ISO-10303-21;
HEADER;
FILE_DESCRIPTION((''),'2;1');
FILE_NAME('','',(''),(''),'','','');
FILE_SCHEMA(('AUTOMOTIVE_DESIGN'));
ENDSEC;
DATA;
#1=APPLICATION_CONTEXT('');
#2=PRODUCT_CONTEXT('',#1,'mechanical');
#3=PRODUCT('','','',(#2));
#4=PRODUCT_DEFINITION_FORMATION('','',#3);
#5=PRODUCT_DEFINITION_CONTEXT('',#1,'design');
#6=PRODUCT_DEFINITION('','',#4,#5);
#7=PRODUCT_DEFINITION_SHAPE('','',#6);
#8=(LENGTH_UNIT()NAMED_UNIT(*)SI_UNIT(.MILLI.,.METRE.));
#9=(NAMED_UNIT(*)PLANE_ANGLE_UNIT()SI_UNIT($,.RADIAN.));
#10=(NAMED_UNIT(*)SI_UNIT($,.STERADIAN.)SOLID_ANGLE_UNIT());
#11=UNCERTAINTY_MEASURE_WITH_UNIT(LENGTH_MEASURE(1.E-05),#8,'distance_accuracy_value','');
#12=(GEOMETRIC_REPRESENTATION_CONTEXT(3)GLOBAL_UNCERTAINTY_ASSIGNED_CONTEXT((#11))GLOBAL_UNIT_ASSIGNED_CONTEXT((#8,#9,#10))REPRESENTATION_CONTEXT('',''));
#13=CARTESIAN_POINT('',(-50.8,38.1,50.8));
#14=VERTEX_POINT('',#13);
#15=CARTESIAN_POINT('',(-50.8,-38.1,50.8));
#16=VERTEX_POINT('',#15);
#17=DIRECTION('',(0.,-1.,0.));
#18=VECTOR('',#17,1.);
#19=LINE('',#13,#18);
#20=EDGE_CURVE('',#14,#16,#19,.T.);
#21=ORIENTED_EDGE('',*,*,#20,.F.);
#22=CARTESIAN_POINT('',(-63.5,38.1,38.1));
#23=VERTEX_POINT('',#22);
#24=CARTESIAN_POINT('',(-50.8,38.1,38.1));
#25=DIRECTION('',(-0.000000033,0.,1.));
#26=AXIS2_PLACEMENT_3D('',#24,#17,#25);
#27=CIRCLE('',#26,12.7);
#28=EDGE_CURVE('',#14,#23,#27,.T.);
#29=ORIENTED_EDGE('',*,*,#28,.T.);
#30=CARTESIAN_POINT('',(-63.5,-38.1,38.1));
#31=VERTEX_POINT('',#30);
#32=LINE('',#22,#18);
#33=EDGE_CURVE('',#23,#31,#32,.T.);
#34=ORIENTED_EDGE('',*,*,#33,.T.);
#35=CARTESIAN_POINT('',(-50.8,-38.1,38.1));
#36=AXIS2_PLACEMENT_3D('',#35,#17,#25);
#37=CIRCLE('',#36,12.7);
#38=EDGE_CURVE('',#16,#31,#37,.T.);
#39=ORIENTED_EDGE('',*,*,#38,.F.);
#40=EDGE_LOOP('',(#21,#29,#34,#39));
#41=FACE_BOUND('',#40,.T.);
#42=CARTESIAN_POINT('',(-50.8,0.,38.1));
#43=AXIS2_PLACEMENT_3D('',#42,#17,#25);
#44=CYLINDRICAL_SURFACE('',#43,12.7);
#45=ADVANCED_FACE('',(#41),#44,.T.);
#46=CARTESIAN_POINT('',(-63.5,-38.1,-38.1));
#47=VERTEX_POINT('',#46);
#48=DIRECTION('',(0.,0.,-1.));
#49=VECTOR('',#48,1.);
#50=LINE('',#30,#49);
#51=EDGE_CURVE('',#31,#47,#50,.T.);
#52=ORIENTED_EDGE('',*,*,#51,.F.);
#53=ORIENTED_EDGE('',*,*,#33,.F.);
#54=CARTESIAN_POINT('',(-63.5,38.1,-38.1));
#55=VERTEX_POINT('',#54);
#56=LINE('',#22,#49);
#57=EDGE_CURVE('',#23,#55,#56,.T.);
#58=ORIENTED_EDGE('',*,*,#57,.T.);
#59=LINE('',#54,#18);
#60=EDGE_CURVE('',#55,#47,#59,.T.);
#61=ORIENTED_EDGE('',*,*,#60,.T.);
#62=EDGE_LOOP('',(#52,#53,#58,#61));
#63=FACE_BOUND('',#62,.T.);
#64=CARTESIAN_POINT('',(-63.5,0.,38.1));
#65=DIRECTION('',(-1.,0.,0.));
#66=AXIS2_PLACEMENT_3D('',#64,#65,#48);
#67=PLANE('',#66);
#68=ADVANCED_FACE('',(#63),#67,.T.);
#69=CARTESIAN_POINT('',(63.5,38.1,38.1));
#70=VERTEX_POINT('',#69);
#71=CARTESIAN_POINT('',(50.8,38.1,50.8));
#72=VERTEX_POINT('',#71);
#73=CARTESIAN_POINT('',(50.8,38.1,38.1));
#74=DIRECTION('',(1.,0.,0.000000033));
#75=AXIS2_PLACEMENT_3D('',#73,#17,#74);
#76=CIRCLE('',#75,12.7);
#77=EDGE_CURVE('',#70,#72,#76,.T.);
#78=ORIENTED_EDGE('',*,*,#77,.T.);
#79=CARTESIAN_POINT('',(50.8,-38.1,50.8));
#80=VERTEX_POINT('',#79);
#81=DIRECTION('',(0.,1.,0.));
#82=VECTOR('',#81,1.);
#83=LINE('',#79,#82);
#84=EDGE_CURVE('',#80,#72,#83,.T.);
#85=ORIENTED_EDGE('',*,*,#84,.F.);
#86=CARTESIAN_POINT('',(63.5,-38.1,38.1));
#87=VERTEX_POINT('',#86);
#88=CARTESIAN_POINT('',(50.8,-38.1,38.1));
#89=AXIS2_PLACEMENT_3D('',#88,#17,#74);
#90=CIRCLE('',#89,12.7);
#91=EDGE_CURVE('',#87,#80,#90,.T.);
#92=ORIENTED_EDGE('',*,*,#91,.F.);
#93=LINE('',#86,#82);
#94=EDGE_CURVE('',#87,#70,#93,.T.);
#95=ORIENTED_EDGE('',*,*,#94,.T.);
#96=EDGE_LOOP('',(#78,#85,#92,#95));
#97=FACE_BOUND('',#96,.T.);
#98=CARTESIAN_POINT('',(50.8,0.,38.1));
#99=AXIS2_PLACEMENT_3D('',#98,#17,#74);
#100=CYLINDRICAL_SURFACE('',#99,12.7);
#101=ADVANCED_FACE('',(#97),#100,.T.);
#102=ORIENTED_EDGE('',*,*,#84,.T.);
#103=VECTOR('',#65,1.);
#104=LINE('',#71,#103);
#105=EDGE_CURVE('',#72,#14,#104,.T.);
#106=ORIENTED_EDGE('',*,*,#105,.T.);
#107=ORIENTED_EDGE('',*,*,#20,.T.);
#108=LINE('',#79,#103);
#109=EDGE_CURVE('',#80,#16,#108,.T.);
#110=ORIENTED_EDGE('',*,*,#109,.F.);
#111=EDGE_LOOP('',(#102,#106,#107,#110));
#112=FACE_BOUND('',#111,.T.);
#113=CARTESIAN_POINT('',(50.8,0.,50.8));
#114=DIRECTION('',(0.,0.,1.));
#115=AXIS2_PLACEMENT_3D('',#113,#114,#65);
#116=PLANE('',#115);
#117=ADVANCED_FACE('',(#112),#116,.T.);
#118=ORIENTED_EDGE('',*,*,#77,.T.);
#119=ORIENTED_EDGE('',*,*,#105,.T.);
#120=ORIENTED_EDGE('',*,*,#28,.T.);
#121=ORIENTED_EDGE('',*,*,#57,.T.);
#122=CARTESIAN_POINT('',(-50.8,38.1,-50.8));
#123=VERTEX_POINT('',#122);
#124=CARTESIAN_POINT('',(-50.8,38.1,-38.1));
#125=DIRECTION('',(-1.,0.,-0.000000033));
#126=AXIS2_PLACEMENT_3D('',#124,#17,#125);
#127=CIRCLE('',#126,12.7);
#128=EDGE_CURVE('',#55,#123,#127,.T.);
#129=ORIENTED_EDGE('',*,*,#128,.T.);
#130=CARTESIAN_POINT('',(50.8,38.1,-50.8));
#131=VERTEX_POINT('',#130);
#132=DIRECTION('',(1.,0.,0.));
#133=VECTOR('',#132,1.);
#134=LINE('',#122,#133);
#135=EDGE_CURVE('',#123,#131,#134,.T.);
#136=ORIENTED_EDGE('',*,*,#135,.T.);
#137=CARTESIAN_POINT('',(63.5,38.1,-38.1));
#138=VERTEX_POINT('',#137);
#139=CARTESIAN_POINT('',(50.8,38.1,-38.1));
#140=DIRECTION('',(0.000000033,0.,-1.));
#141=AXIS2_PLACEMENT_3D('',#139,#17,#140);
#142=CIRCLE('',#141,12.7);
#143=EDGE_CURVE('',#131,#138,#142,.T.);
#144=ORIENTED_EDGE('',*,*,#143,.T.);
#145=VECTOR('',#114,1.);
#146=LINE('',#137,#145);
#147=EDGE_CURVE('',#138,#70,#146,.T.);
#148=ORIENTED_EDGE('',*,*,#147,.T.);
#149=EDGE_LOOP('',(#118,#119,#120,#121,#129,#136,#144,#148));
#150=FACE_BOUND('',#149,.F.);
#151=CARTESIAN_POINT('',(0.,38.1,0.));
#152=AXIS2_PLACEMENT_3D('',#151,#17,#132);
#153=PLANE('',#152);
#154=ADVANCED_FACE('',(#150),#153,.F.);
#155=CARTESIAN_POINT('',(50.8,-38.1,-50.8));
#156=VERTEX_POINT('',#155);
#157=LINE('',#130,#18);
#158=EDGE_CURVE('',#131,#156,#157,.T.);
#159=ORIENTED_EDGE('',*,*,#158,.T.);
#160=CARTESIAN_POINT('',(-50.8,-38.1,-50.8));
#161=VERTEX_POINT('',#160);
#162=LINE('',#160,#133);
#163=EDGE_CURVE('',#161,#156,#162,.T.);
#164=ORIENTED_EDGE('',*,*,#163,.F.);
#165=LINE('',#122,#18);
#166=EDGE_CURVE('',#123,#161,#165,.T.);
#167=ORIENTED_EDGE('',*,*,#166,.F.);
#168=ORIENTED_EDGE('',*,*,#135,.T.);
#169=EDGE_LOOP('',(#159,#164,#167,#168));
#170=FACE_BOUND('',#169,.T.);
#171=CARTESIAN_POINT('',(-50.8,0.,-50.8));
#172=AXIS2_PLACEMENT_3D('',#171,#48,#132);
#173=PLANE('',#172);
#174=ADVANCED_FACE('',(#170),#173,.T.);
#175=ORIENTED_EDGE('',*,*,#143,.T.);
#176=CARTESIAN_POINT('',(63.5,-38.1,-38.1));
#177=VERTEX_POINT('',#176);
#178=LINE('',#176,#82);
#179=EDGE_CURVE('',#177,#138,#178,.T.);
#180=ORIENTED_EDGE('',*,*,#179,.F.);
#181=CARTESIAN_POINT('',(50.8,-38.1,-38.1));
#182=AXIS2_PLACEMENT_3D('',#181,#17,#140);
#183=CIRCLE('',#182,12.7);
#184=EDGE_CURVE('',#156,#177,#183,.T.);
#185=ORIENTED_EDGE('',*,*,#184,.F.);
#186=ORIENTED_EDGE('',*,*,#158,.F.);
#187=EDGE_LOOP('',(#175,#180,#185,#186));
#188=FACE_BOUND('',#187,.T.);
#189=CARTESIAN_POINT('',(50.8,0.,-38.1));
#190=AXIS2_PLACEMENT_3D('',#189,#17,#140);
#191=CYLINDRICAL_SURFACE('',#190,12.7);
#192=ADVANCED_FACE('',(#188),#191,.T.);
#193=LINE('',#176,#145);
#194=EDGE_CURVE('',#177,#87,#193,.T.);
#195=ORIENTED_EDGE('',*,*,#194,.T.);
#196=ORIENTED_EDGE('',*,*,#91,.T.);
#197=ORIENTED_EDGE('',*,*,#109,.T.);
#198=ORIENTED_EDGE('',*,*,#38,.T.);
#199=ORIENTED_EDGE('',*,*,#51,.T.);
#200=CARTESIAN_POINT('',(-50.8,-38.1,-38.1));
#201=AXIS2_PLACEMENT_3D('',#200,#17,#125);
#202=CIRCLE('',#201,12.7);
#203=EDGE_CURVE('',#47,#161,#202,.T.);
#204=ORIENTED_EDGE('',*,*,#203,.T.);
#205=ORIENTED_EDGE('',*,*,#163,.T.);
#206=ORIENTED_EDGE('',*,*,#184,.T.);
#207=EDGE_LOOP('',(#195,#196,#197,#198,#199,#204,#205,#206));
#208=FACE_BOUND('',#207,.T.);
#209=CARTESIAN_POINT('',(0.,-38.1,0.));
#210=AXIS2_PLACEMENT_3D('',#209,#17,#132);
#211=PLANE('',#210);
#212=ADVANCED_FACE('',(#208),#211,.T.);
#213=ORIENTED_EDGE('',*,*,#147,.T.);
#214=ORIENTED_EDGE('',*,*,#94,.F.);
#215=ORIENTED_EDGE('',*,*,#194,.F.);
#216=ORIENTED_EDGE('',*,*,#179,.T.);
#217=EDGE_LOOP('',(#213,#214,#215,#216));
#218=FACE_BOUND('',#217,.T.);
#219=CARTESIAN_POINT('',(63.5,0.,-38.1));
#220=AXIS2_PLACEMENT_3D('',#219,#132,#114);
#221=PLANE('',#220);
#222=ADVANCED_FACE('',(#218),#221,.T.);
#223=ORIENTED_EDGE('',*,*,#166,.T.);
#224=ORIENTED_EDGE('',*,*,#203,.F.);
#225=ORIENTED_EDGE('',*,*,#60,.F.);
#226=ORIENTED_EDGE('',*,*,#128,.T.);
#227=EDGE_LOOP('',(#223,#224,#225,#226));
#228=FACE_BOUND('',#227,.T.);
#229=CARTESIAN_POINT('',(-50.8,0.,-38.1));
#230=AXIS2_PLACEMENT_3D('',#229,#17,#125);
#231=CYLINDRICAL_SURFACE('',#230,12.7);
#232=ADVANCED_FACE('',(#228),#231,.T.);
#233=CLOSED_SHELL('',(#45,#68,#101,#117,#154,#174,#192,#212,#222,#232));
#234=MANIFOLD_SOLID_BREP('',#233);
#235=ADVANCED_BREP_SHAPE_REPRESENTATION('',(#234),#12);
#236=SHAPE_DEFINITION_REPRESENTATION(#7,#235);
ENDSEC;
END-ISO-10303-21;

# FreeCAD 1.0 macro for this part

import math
import FreeCAD as App
import Part
import Sketcher
Q = App.Units.Quantity

doc = App.newDocument("Part")
body = doc.addObject("PartDesign::Body", "Body")

# Sketch on XZ plane
sketch1 = body.newObject("Sketcher::SketchObject", "Sketch")
sketch1.AttachmentSupport = (doc.getObject("XZ_Plane"), [""])
sketch1.MapMode = "FlatFace"
sketch1.addGeometry([
    Part.LineSegment(App.Vector(50.8, 50.8, 0), App.Vector(-50.8, 50.8, 0)),  # 0
    Part.ArcOfCircle(Part.Circle(App.Vector(-50.8, 38.1, 0), App.Vector(0, 0, 1), 12.7), math.radians(90.000002), math.radians(179.999998)),  # 1
    Part.LineSegment(App.Vector(-63.5, 38.1, 0), App.Vector(-63.5, -38.1, 0)),  # 2
    Part.ArcOfCircle(Part.Circle(App.Vector(-50.8, -38.1, 0), App.Vector(0, 0, 1), 12.7), math.radians(-179.999998), math.radians(-90.000002)),  # 3
    Part.LineSegment(App.Vector(-50.8, -50.8, 0), App.Vector(50.8, -50.8, 0)),  # 4
    Part.ArcOfCircle(Part.Circle(App.Vector(50.8, -38.1, 0), App.Vector(0, 0, 1), 12.7), math.radians(-89.999998), math.radians(-0.000002)),  # 5
    Part.LineSegment(App.Vector(63.5, -38.1, 0), App.Vector(63.5, 38.1, 0)),  # 6
    Part.ArcOfCircle(Part.Circle(App.Vector(50.8, 38.1, 0), App.Vector(0, 0, 1), 12.7), math.radians(0.000002), math.radians(89.999998)),  # 7
], False)
sketch1.addConstraint([
    Sketcher.Constraint("Tangent", 0, 2, 1, 1),
    Sketcher.Constraint("Tangent", 1, 2, 2, 1),
    Sketcher.Constraint("Tangent", 2, 2, 3, 1),
    Sketcher.Constraint("Tangent", 3, 2, 4, 1),
    Sketcher.Constraint("Tangent", 4, 2, 5, 1),
    Sketcher.Constraint("Tangent", 5, 2, 6, 1),
    Sketcher.Constraint("Tangent", 6, 2, 7, 1),
    Sketcher.Constraint("Tangent", 7, 2, 0, 1),
    Sketcher.Constraint("Horizontal", 0),
    Sketcher.Constraint("Vertical", 2),
    Sketcher.Constraint("Horizontal", 4),
    Sketcher.Constraint("Vertical", 6),
    Sketcher.Constraint("Equal", 1, 3),
    Sketcher.Constraint("Equal", 3, 5),
    Sketcher.Constraint("Equal", 5, 7),
    Sketcher.Constraint("Symmetric", 1, 3, 5, 3, -1, 1),
    Sketcher.Constraint("Radius", 1, Q("0.5 in")),
    Sketcher.Constraint("DistanceX", 0, 2, 0, 1, Q("4 in")),
    Sketcher.Constraint("DistanceY", 2, 2, 2, 1, Q("3 in")),
])
pad1 = body.newObject("PartDesign::Pad", "Pad")
pad1.Profile = sketch1
pad1.Length = Q("3 in")
pad1.Midplane = True

doc.recompute()
